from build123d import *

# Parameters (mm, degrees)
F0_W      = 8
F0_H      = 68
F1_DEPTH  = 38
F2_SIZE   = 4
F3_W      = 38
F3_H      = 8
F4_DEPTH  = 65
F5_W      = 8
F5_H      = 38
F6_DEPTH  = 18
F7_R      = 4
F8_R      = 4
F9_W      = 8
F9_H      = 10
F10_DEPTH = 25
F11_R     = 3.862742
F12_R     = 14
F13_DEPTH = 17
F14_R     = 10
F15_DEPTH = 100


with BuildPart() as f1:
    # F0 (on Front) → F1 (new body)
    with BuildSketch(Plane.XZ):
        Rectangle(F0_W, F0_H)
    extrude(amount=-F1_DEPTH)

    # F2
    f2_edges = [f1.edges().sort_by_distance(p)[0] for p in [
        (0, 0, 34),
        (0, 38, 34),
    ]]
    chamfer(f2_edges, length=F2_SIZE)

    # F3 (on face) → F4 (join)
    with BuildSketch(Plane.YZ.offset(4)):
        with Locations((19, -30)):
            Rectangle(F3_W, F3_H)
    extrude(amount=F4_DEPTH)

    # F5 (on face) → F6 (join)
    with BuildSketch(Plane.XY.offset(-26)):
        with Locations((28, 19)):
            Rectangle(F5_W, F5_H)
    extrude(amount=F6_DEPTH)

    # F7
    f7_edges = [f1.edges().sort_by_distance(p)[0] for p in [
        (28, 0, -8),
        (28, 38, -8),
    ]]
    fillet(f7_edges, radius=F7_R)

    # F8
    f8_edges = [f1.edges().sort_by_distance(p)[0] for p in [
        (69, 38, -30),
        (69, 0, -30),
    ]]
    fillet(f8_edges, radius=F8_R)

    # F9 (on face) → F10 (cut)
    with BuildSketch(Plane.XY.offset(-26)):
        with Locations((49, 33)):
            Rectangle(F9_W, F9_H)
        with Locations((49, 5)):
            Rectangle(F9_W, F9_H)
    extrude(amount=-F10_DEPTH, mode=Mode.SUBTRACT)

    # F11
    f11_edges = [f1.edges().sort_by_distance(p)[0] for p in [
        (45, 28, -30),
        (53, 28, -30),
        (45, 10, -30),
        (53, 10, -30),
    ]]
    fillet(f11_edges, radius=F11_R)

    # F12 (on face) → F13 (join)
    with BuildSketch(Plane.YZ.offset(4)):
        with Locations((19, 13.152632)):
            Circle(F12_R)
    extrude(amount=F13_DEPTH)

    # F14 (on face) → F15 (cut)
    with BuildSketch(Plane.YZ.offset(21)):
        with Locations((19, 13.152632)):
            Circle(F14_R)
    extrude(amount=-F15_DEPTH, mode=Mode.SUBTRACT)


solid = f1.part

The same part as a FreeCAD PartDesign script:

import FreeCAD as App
import Part
import Sketcher


def edges_at(feature, points):
    """Names of the edges that pass closest to the given points."""
    edges = feature.Shape.Edges
    near = lambda p: min(range(len(edges)), key=lambda i: edges[i].distToShape(Part.Vertex(*p))[0])
    return sorted({f"Edge{near(p) + 1}" for p in points})

doc = App.newDocument("Part")
params = doc.addObject("Spreadsheet::Sheet", "Params")
for row, (alias, value) in enumerate([
    ("sketch1_width", "8 mm"),
    ("sketch1_height", "68 mm"),
    ("pad1_length", "38 mm"),
    ("chamfer_size", "4 mm"),
    ("sketch2_width", "38 mm"),
    ("sketch2_height", "8 mm"),
    ("pad2_length", "65 mm"),
    ("sketch3_width", "8 mm"),
    ("sketch3_height", "38 mm"),
    ("pad3_length", "18 mm"),
    ("fillet_radius", "4 mm"),
    ("fillet2_radius", "4 mm"),
    ("sketch4_width", "8 mm"),
    ("sketch4_height", "10 mm"),
    ("pocket1_length", "25 mm"),
    ("fillet3_radius", "3.862742 mm"),
    ("sketch5_diameter", "28 mm"),
    ("pad4_length", "17 mm"),
    ("sketch6_diameter", "20 mm"),
    ("pocket2_length", "100 mm"),
], start=1):
    params.set(f"A{row}", alias)
    params.set(f"B{row}", "=" + value)
    params.setAlias(f"B{row}", alias)

body = doc.addObject("PartDesign::Body", "Body")

sketch1 = body.newObject("Sketcher::SketchObject", "Sketch")
sketch1.AttachmentSupport = (doc.getObject("XZ_Plane"), [""])
sketch1.MapMode = "FlatFace"
sketch1.addGeometry(Part.LineSegment(App.Vector(-4, 34, 0), App.Vector(-4, -34, 0)), False)
sketch1.addGeometry(Part.LineSegment(App.Vector(-4, -34, 0), App.Vector(4, -34, 0)), False)
sketch1.addGeometry(Part.LineSegment(App.Vector(4, -34, 0), App.Vector(4, 34, 0)), False)
sketch1.addGeometry(Part.LineSegment(App.Vector(4, 34, 0), App.Vector(-4, 34, 0)), False)
sketch1.addConstraint(Sketcher.Constraint("Coincident", 0, 2, 1, 1))
sketch1.addConstraint(Sketcher.Constraint("Coincident", 1, 2, 2, 1))
sketch1.addConstraint(Sketcher.Constraint("Coincident", 2, 2, 3, 1))
sketch1.addConstraint(Sketcher.Constraint("Coincident", 3, 2, 0, 1))
sketch1.addConstraint(Sketcher.Constraint("Vertical", 0))
sketch1.addConstraint(Sketcher.Constraint("Horizontal", 1))
sketch1.addConstraint(Sketcher.Constraint("Vertical", 2))
sketch1.addConstraint(Sketcher.Constraint("Horizontal", 3))
sketch1.addConstraint(Sketcher.Constraint("Symmetric", 0, 2, 2, 2, -1, 1))
sketch1.addConstraint(Sketcher.Constraint("DistanceX", 1, 1, 1, 2, 8.0))
sketch1.addConstraint(Sketcher.Constraint("DistanceY", 0, 2, 0, 1, 68.0))
sketch1.setExpression("Constraints[9]", "Params.sketch1_width")
sketch1.setExpression("Constraints[10]", "Params.sketch1_height")
pad1 = body.newObject("PartDesign::Pad", "Pad")
pad1.Profile = sketch1
pad1.setExpression("Length", "Params.pad1_length")
pad1.Reversed = True
doc.recompute()

chamfer = body.newObject("PartDesign::Chamfer", "Chamfer")
chamfer.Base = (pad1, edges_at(pad1, [(0, 0, 34), (0, 38, 34)]))
chamfer.setExpression("Size", "Params.chamfer_size")

sketch2 = body.newObject("Sketcher::SketchObject", "Sketch001")
sketch2.AttachmentSupport = (doc.getObject("YZ_Plane"), [""])
sketch2.MapMode = "FlatFace"
sketch2.AttachmentOffset = App.Placement(App.Vector(0, 0, 4), App.Rotation())
sketch2.addGeometry(Part.LineSegment(App.Vector(0, -26, 0), App.Vector(0, -34, 0)), False)
sketch2.addGeometry(Part.LineSegment(App.Vector(0, -34, 0), App.Vector(38, -34, 0)), False)
sketch2.addGeometry(Part.LineSegment(App.Vector(38, -34, 0), App.Vector(38, -26, 0)), False)
sketch2.addGeometry(Part.LineSegment(App.Vector(38, -26, 0), App.Vector(0, -26, 0)), False)
sketch2.addConstraint(Sketcher.Constraint("Coincident", 0, 2, 1, 1))
sketch2.addConstraint(Sketcher.Constraint("Coincident", 1, 2, 2, 1))
sketch2.addConstraint(Sketcher.Constraint("Coincident", 2, 2, 3, 1))
sketch2.addConstraint(Sketcher.Constraint("Coincident", 3, 2, 0, 1))
sketch2.addConstraint(Sketcher.Constraint("Vertical", 0))
sketch2.addConstraint(Sketcher.Constraint("Horizontal", 1))
sketch2.addConstraint(Sketcher.Constraint("Vertical", 2))
sketch2.addConstraint(Sketcher.Constraint("Horizontal", 3))
sketch2.addConstraint(Sketcher.Constraint("PointOnObject", 0, 2, -2))
sketch2.addConstraint(Sketcher.Constraint("DistanceX", 1, 1, 1, 2, 38.0))
sketch2.addConstraint(Sketcher.Constraint("DistanceY", 0, 2, 0, 1, 8.0))
sketch2.addConstraint(Sketcher.Constraint("DistanceY", 0, 2, -1, 1, 34.0))
sketch2.setExpression("Constraints[9]", "Params.sketch2_width")
sketch2.setExpression("Constraints[10]", "Params.sketch2_height")
pad2 = body.newObject("PartDesign::Pad", "Pad001")
pad2.Profile = sketch2
pad2.setExpression("Length", "Params.pad2_length")

sketch3 = body.newObject("Sketcher::SketchObject", "Sketch002")
sketch3.AttachmentSupport = (doc.getObject("XY_Plane"), [""])
sketch3.MapMode = "FlatFace"
sketch3.AttachmentOffset = App.Placement(App.Vector(0, 0, -26), App.Rotation())
sketch3.addGeometry(Part.LineSegment(App.Vector(24, 38, 0), App.Vector(24, 0, 0)), False)
sketch3.addGeometry(Part.LineSegment(App.Vector(24, 0, 0), App.Vector(32, 0, 0)), False)
sketch3.addGeometry(Part.LineSegment(App.Vector(32, 0, 0), App.Vector(32, 38, 0)), False)
sketch3.addGeometry(Part.LineSegment(App.Vector(32, 38, 0), App.Vector(24, 38, 0)), False)
sketch3.addConstraint(Sketcher.Constraint("Coincident", 0, 2, 1, 1))
sketch3.addConstraint(Sketcher.Constraint("Coincident", 1, 2, 2, 1))
sketch3.addConstraint(Sketcher.Constraint("Coincident", 2, 2, 3, 1))
sketch3.addConstraint(Sketcher.Constraint("Coincident", 3, 2, 0, 1))
sketch3.addConstraint(Sketcher.Constraint("Vertical", 0))
sketch3.addConstraint(Sketcher.Constraint("Horizontal", 1))
sketch3.addConstraint(Sketcher.Constraint("Vertical", 2))
sketch3.addConstraint(Sketcher.Constraint("Horizontal", 3))
sketch3.addConstraint(Sketcher.Constraint("PointOnObject", 0, 2, -1))
sketch3.addConstraint(Sketcher.Constraint("DistanceX", 1, 1, 1, 2, 8.0))
sketch3.addConstraint(Sketcher.Constraint("DistanceY", 0, 2, 0, 1, 38.0))
sketch3.addConstraint(Sketcher.Constraint("DistanceX", -1, 1, 0, 2, 24.0))
sketch3.setExpression("Constraints[9]", "Params.sketch3_width")
sketch3.setExpression("Constraints[10]", "Params.sketch3_height")
pad3 = body.newObject("PartDesign::Pad", "Pad002")
pad3.Profile = sketch3
pad3.setExpression("Length", "Params.pad3_length")
doc.recompute()

fillet = body.newObject("PartDesign::Fillet", "Fillet")
fillet.Base = (pad3, edges_at(pad3, [(28, 0, -8), (28, 38, -8)]))
fillet.setExpression("Radius", "Params.fillet_radius")
doc.recompute()

fillet2 = body.newObject("PartDesign::Fillet", "Fillet001")
fillet2.Base = (fillet, edges_at(fillet, [(69, 38, -30), (69, 0, -30)]))
fillet2.setExpression("Radius", "Params.fillet2_radius")

sketch4 = body.newObject("Sketcher::SketchObject", "Sketch003")
sketch4.AttachmentSupport = (doc.getObject("XY_Plane"), [""])
sketch4.MapMode = "FlatFace"
sketch4.AttachmentOffset = App.Placement(App.Vector(0, 0, -26), App.Rotation())
sketch4.addGeometry(Part.LineSegment(App.Vector(45, 38, 0), App.Vector(45, 28, 0)), False)
sketch4.addGeometry(Part.LineSegment(App.Vector(45, 28, 0), App.Vector(53, 28, 0)), False)
sketch4.addGeometry(Part.LineSegment(App.Vector(53, 28, 0), App.Vector(53, 38, 0)), False)
sketch4.addGeometry(Part.LineSegment(App.Vector(53, 38, 0), App.Vector(45, 38, 0)), False)
sketch4.addGeometry(Part.LineSegment(App.Vector(45, 10, 0), App.Vector(45, 0, 0)), False)
sketch4.addGeometry(Part.LineSegment(App.Vector(45, 0, 0), App.Vector(53, 0, 0)), False)
sketch4.addGeometry(Part.LineSegment(App.Vector(53, 0, 0), App.Vector(53, 10, 0)), False)
sketch4.addGeometry(Part.LineSegment(App.Vector(53, 10, 0), App.Vector(45, 10, 0)), False)
sketch4.addConstraint(Sketcher.Constraint("Coincident", 0, 2, 1, 1))
sketch4.addConstraint(Sketcher.Constraint("Coincident", 1, 2, 2, 1))
sketch4.addConstraint(Sketcher.Constraint("Coincident", 2, 2, 3, 1))
sketch4.addConstraint(Sketcher.Constraint("Coincident", 3, 2, 0, 1))
sketch4.addConstraint(Sketcher.Constraint("Coincident", 4, 2, 5, 1))
sketch4.addConstraint(Sketcher.Constraint("Coincident", 5, 2, 6, 1))
sketch4.addConstraint(Sketcher.Constraint("Coincident", 6, 2, 7, 1))
sketch4.addConstraint(Sketcher.Constraint("Coincident", 7, 2, 4, 1))
sketch4.addConstraint(Sketcher.Constraint("Vertical", 0))
sketch4.addConstraint(Sketcher.Constraint("Horizontal", 1))
sketch4.addConstraint(Sketcher.Constraint("Vertical", 2))
sketch4.addConstraint(Sketcher.Constraint("Horizontal", 3))
sketch4.addConstraint(Sketcher.Constraint("Vertical", 4))
sketch4.addConstraint(Sketcher.Constraint("Horizontal", 5))
sketch4.addConstraint(Sketcher.Constraint("Vertical", 6))
sketch4.addConstraint(Sketcher.Constraint("Horizontal", 7))
sketch4.addConstraint(Sketcher.Constraint("PointOnObject", 4, 2, -1))
sketch4.addConstraint(Sketcher.Constraint("Vertical", 3, 2, 4, 2))
sketch4.addConstraint(Sketcher.Constraint("Vertical", 2, 2, 5, 2))
sketch4.addConstraint(Sketcher.Constraint("Equal", 2, 4))
sketch4.addConstraint(Sketcher.Constraint("DistanceX", 1, 1, 1, 2, 8.0))
sketch4.addConstraint(Sketcher.Constraint("DistanceY", 0, 2, 0, 1, 10.0))
sketch4.addConstraint(Sketcher.Constraint("DistanceX", -1, 1, 0, 2, 45.0))
sketch4.addConstraint(Sketcher.Constraint("DistanceY", -1, 1, 0, 2, 28.0))
sketch4.setExpression("Constraints[20]", "Params.sketch4_width")
sketch4.setExpression("Constraints[21]", "Params.sketch4_height")
pocket1 = body.newObject("PartDesign::Pocket", "Pocket")
pocket1.Profile = sketch4
pocket1.setExpression("Length", "Params.pocket1_length")
doc.recompute()

fillet3 = body.newObject("PartDesign::Fillet", "Fillet002")
fillet3.Base = (pocket1, edges_at(pocket1, [
    (45, 28, -30),
    (53, 28, -30),
    (45, 10, -30),
    (53, 10, -30),
]))
fillet3.setExpression("Radius", "Params.fillet3_radius")

sketch5 = body.newObject("Sketcher::SketchObject", "Sketch004")
sketch5.AttachmentSupport = (doc.getObject("YZ_Plane"), [""])
sketch5.MapMode = "FlatFace"
sketch5.AttachmentOffset = App.Placement(App.Vector(0, 0, 4), App.Rotation())
sketch5.addGeometry(Part.Circle(App.Vector(19, 13.152632, 0), App.Vector(0, 0, 1), 14), False)
sketch5.addConstraint(Sketcher.Constraint("Diameter", 0, 28.0))
sketch5.addConstraint(Sketcher.Constraint("DistanceX", -1, 1, 0, 3, 19.0))
sketch5.addConstraint(Sketcher.Constraint("DistanceY", -1, 1, 0, 3, 13.152632))
sketch5.setExpression("Constraints[0]", "Params.sketch5_diameter")
pad4 = body.newObject("PartDesign::Pad", "Pad003")
pad4.Profile = sketch5
pad4.setExpression("Length", "Params.pad4_length")

sketch6 = body.newObject("Sketcher::SketchObject", "Sketch005")
sketch6.AttachmentSupport = (doc.getObject("YZ_Plane"), [""])
sketch6.MapMode = "FlatFace"
sketch6.AttachmentOffset = App.Placement(App.Vector(0, 0, 21), App.Rotation())
sketch6.addGeometry(Part.Circle(App.Vector(19, 13.152632, 0), App.Vector(0, 0, 1), 10), False)
sketch6.addConstraint(Sketcher.Constraint("Diameter", 0, 20.0))
sketch6.addConstraint(Sketcher.Constraint("DistanceX", -1, 1, 0, 3, 19.0))
sketch6.addConstraint(Sketcher.Constraint("DistanceY", -1, 1, 0, 3, 13.152632))
sketch6.setExpression("Constraints[0]", "Params.sketch6_diameter")
pocket2 = body.newObject("PartDesign::Pocket", "Pocket001")
pocket2.Profile = sketch6
pocket2.setExpression("Length", "Params.pocket2_length")

doc.recompute()
